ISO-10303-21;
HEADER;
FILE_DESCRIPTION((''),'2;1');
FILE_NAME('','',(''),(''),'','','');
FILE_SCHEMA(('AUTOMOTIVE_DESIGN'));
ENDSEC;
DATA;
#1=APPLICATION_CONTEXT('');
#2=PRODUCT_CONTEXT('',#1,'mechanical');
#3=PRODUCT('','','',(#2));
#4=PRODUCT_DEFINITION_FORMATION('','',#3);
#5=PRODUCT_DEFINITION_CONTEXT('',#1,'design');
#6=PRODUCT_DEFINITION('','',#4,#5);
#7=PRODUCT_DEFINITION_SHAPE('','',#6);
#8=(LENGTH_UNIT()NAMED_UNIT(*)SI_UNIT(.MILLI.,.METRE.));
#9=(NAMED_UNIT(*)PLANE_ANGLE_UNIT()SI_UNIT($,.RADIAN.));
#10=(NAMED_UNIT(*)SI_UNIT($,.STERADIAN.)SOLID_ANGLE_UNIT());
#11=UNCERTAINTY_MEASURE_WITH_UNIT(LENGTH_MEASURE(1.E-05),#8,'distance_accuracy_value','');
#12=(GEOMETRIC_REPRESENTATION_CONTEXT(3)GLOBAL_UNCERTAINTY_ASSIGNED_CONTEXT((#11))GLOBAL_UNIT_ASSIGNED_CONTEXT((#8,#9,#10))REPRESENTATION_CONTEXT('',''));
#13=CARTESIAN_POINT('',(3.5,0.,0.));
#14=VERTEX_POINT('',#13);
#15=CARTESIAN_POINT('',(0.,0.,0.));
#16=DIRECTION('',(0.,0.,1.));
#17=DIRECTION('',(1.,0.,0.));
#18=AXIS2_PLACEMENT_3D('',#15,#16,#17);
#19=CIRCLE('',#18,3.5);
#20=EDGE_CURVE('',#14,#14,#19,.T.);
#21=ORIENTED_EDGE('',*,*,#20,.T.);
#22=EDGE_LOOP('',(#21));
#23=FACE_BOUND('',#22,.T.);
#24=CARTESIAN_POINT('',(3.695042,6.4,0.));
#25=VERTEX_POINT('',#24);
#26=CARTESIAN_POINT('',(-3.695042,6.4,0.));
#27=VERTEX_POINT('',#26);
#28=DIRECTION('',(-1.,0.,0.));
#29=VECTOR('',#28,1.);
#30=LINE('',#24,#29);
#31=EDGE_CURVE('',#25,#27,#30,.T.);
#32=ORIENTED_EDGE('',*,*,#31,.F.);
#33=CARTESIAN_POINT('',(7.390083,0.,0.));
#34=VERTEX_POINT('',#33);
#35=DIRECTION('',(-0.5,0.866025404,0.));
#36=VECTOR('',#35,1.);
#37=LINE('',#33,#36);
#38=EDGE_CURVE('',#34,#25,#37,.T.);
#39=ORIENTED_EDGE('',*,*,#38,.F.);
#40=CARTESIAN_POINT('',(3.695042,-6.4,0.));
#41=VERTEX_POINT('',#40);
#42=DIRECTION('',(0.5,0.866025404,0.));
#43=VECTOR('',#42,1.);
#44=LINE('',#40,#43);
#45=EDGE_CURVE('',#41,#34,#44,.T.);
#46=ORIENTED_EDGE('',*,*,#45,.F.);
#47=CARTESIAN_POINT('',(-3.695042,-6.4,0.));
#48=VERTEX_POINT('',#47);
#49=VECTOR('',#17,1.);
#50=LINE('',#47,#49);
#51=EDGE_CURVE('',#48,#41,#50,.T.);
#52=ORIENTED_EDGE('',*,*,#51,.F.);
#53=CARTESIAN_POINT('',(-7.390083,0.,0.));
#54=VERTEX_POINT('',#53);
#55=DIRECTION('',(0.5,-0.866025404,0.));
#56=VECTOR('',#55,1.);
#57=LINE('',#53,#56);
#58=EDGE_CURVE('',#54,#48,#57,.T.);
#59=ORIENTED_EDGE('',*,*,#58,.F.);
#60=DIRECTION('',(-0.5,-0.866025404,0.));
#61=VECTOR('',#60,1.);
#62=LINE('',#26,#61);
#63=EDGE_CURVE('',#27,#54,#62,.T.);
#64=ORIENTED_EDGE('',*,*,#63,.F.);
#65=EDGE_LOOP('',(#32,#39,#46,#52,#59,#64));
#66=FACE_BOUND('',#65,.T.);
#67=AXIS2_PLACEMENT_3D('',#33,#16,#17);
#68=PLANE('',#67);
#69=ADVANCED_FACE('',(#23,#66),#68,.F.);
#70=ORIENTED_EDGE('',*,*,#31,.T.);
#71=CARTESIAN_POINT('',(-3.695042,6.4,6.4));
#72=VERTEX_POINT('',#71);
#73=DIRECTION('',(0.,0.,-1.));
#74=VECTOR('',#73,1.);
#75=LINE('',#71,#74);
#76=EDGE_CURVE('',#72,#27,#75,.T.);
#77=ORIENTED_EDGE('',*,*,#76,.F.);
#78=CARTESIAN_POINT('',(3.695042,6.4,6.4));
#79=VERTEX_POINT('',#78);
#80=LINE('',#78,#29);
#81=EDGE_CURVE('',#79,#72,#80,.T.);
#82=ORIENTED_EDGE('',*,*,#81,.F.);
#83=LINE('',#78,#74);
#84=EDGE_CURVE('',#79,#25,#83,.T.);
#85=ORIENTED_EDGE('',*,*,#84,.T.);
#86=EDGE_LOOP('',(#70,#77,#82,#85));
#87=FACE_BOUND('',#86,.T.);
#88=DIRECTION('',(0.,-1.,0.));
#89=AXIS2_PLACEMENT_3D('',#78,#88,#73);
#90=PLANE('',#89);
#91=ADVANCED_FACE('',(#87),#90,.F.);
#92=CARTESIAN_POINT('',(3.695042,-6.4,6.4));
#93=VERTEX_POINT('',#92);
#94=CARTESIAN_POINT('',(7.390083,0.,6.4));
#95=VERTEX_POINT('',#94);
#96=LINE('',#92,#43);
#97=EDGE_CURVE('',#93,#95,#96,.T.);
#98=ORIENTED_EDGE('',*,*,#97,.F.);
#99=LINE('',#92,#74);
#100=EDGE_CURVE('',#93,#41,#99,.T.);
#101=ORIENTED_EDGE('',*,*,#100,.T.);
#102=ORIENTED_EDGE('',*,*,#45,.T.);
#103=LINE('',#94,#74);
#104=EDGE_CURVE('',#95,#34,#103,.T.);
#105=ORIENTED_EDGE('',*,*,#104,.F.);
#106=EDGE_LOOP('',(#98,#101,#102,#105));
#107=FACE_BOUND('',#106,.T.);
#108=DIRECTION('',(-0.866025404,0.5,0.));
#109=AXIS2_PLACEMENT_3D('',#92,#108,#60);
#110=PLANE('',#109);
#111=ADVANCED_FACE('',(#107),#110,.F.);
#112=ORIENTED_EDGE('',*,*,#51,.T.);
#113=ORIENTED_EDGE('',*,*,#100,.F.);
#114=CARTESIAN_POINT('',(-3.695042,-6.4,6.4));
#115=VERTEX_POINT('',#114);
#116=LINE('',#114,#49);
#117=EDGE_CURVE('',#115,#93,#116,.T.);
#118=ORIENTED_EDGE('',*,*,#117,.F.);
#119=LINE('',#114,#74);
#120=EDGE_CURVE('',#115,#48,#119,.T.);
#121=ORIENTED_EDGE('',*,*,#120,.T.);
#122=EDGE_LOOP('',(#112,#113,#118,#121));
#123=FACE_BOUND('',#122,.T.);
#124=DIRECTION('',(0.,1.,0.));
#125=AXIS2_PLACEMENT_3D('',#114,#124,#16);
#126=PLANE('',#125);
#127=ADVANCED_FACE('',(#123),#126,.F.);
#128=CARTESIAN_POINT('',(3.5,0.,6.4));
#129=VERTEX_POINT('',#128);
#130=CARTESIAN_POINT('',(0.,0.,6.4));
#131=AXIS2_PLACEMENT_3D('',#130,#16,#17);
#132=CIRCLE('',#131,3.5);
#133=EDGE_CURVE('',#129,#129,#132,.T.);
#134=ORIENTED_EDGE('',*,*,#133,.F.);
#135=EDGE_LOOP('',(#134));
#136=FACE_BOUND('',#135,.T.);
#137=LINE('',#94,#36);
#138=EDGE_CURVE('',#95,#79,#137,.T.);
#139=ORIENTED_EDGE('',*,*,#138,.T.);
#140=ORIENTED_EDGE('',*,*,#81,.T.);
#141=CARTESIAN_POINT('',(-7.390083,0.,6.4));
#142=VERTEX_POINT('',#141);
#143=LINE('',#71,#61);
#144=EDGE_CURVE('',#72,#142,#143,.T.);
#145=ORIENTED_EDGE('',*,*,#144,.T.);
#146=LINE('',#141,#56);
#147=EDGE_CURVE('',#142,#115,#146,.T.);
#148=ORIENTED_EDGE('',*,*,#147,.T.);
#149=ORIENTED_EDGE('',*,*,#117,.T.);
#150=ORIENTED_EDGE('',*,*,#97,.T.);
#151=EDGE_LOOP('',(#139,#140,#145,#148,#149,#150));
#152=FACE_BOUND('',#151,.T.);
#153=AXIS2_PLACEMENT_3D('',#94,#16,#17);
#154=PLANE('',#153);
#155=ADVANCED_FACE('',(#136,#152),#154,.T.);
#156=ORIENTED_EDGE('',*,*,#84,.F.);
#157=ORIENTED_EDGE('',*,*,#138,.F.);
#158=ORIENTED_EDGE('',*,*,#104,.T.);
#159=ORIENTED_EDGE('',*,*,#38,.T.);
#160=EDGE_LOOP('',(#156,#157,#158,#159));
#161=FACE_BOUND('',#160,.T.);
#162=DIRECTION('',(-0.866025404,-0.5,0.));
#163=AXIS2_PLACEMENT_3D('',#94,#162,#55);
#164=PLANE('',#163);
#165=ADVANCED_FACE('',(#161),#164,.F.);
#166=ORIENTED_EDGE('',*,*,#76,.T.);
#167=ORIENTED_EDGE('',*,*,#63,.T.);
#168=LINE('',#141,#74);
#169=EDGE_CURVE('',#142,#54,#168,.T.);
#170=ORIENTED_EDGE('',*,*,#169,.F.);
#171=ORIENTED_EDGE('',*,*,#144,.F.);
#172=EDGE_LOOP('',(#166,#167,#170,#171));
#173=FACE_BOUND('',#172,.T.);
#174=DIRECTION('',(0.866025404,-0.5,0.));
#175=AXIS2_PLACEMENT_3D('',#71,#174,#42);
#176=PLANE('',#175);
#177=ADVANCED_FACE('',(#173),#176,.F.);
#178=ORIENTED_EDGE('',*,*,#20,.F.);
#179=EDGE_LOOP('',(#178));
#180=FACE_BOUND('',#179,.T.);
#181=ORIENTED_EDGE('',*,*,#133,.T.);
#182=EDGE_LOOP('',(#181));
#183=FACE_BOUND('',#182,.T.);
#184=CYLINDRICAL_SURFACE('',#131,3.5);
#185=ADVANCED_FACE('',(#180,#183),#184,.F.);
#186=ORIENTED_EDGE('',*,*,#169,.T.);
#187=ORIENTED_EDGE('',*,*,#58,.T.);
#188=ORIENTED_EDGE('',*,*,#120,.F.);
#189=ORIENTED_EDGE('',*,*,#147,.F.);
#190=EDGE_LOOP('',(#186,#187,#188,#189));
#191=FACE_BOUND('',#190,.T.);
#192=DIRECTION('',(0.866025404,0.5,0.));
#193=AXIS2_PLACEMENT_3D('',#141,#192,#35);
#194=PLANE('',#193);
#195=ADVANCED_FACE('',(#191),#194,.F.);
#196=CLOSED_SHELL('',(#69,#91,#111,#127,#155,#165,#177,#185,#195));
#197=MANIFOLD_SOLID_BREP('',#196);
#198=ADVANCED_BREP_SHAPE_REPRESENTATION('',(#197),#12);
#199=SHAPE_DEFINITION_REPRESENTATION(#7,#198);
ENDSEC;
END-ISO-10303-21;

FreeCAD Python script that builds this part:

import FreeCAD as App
import Part
import Sketcher
Q = App.Units.Quantity

doc = App.newDocument("Part")
body = doc.addObject("PartDesign::Body", "Body")

sketch1 = body.newObject("Sketcher::SketchObject", "Sketch")
sketch1.AttachmentSupport = (doc.getObject("XY_Plane"), [""])
sketch1.MapMode = "FlatFace"
sketch1.addGeometry([
    Part.LineSegment(App.Vector(7.390083, 0, 0), App.Vector(3.695042, 6.4, 0)),
    Part.LineSegment(App.Vector(3.695042, 6.4, 0), App.Vector(-3.695042, 6.4, 0)),
    Part.LineSegment(App.Vector(-3.695042, 6.4, 0), App.Vector(-7.390083, 0, 0)),
    Part.LineSegment(App.Vector(-7.390083, 0, 0), App.Vector(-3.695042, -6.4, 0)),
    Part.LineSegment(App.Vector(-3.695042, -6.4, 0), App.Vector(3.695042, -6.4, 0)),
    Part.LineSegment(App.Vector(3.695042, -6.4, 0), App.Vector(7.390083, 0, 0)),
], False)
sketch1.addConstraint([
    Sketcher.Constraint("Coincident", 0, 2, 1, 1),
    Sketcher.Constraint("Coincident", 1, 2, 2, 1),
    Sketcher.Constraint("Coincident", 2, 2, 3, 1),
    Sketcher.Constraint("Coincident", 3, 2, 4, 1),
    Sketcher.Constraint("Coincident", 4, 2, 5, 1),
    Sketcher.Constraint("Coincident", 5, 2, 0, 1),
    Sketcher.Constraint("Horizontal", 1),
    Sketcher.Constraint("Horizontal", 4),
    Sketcher.Constraint("Symmetric", 0, 2, 3, 2, -1, 1),
    Sketcher.Constraint("Symmetric", 2, 2, 5, 2, -1, 1),
    Sketcher.Constraint("PointOnObject", 2, 2, -1),
    Sketcher.Constraint("Parallel", 2, 5),
    Sketcher.Constraint("Vertical", 1, 2, 3, 2),
    Sketcher.Constraint("Angle", 0, Q("120 deg")),
    Sketcher.Constraint("DistanceY", -1, 1, 0, 2, 6.4),
    Sketcher.Constraint("DistanceX", 1, 2, 1, 1, 7.390083),
])
pad1 = body.newObject("PartDesign::Pad", "Pad")
pad1.Profile = sketch1
pad1.Length = 6.4

sketch2 = body.newObject("Sketcher::SketchObject", "Sketch001")
sketch2.AttachmentSupport = (doc.getObject("XY_Plane"), [""])
sketch2.MapMode = "FlatFace"
sketch2.AttachmentOffset = App.Placement(App.Vector(0, 0, 6.4), App.Rotation())
sketch2.addGeometry(Part.Circle(App.Vector(0, 0, 0), App.Vector(0, 0, 1), 3.5), False)
sketch2.addConstraint([
    Sketcher.Constraint("Coincident", 0, 3, -1, 1),
    Sketcher.Constraint("Diameter", 0, 7.0),
])
doc.recompute()
hole = body.newObject("PartDesign::Hole", "Hole")
hole.Profile = sketch2
hole.ThreadType = "None"
hole.Diameter = 7
hole.DepthType = "ThroughAll"

doc.recompute()
